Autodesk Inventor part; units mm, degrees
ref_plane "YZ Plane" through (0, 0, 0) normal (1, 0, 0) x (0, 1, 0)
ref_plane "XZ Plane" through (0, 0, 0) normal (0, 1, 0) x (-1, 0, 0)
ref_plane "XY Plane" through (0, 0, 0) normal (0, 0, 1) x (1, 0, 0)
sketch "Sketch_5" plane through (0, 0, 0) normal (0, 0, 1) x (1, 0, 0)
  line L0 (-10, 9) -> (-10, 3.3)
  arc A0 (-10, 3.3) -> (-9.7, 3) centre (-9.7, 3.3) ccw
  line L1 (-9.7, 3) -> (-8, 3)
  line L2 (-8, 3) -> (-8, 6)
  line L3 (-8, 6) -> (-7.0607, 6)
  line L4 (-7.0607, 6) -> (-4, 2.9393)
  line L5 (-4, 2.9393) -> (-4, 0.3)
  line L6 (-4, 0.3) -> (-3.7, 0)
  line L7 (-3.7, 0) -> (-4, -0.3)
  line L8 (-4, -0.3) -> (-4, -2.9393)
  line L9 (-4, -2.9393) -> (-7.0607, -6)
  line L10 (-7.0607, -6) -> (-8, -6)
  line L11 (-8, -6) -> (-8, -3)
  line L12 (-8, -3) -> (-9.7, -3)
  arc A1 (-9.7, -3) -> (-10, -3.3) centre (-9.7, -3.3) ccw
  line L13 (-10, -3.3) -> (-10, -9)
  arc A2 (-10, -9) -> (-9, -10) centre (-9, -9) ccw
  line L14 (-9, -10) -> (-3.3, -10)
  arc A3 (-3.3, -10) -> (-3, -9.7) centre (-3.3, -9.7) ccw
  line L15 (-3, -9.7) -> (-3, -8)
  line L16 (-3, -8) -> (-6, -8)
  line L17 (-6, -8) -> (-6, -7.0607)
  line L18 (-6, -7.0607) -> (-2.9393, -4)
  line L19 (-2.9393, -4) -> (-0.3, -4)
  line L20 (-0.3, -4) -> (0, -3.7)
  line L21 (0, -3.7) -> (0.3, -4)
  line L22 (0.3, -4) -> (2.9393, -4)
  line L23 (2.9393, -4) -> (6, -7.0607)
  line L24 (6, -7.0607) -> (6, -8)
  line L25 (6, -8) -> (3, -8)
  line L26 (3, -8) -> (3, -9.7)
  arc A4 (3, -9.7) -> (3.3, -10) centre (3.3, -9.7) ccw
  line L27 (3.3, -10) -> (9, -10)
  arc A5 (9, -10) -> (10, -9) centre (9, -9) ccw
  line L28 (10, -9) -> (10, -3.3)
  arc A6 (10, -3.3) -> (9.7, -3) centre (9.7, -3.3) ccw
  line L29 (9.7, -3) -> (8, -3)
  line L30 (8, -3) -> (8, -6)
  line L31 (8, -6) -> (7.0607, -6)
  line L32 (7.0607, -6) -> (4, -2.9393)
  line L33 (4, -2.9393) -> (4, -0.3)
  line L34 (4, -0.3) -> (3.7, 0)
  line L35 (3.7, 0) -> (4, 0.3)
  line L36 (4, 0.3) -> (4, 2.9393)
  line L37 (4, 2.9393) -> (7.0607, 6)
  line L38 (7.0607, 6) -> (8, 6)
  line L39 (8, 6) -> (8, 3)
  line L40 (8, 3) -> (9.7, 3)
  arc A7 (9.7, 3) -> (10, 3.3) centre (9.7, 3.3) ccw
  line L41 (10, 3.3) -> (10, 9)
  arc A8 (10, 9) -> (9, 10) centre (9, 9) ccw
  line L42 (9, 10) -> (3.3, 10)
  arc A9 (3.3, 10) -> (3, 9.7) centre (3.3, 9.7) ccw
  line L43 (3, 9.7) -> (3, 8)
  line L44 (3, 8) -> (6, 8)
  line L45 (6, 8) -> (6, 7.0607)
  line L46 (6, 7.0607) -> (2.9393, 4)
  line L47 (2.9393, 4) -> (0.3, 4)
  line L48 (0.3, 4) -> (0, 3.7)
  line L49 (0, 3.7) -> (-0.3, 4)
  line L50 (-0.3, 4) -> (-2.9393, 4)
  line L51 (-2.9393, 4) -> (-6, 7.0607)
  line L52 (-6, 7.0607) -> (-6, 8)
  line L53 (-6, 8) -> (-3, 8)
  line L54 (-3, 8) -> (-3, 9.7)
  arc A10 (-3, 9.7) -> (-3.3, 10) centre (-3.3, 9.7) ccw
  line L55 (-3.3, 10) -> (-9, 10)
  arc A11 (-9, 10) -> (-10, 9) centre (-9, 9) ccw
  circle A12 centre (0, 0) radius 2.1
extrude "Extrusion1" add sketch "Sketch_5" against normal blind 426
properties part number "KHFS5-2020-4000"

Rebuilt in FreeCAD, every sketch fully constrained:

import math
import FreeCAD as App
import Part
import Sketcher

V = App.Vector

doc = App.newDocument("Part")
params = doc.addObject("Spreadsheet::Sheet", "Params")
for row, (alias, value) in enumerate([
    ("sketch1_radius", "1 mm"),
    ("sketch1_diameter", "4.2 mm"),
    ("sketch1_radius2", "0.3 mm"),
    ("sketch1_width", "3 mm"),
    ("sketch1_width2", "1.7 mm"),
    ("pad1_length", "426 mm"),
], start=1):
    params.set(f"A{row}", alias)
    params.set(f"B{row}", "=" + value)
    params.setAlias(f"B{row}", alias)

body = doc.addObject("PartDesign::Body", "Body")

sketch1 = body.newObject("Sketcher::SketchObject", "Sketch")
sketch1.AttachmentSupport = (doc.getObject("XY_Plane"), [""])
sketch1.MapMode = "FlatFace"
sketch1.addGeometry([
    Part.ArcOfCircle(Part.Circle(V(-9, 9, 0), V(0, 0, 1), 1), math.radians(90), math.radians(180)),
    Part.LineSegment(V(-10, 9, 0), V(-10, 3.3, 0)),
    Part.ArcOfCircle(Part.Circle(V(-9.7, 3.3, 0), V(0, 0, 1), 0.3), math.radians(180), math.radians(270)),
    Part.LineSegment(V(-9.7, 3, 0), V(-8, 3, 0)),
    Part.LineSegment(V(-8, 3, 0), V(-8, 6, 0)),
    Part.LineSegment(V(-8, 6, 0), V(-7.06, 6, 0)),
    Part.LineSegment(V(-7.06, 6, 0), V(-4, 2.94, 0)),
    Part.LineSegment(V(-4, 2.94, 0), V(-4, 0.3, 0)),
    Part.LineSegment(V(-4, 0.3, 0), V(-3.7, 0, 0)),
    Part.LineSegment(V(-3.7, 0, 0), V(-4, -0.3, 0)),
    Part.LineSegment(V(-4, -0.3, 0), V(-4, -2.94, 0)),
    Part.LineSegment(V(-4, -2.94, 0), V(-7.06, -6, 0)),
    Part.LineSegment(V(-7.06, -6, 0), V(-8, -6, 0)),
    Part.LineSegment(V(-8, -6, 0), V(-8, -3, 0)),
    Part.LineSegment(V(-8, -3, 0), V(-9.7, -3, 0)),
    Part.ArcOfCircle(Part.Circle(V(-9.7, -3.3, 0), V(0, 0, 1), 0.3), math.radians(90), math.radians(180)),
    Part.LineSegment(V(-10, -3.3, 0), V(-10, -9, 0)),
    Part.ArcOfCircle(Part.Circle(V(-9, -9, 0), V(0, 0, 1), 1), math.radians(180), math.radians(270)),
    Part.LineSegment(V(-9, -10, 0), V(-3.3, -10, 0)),
    Part.ArcOfCircle(Part.Circle(V(-3.3, -9.7, 0), V(0, 0, 1), 0.3), math.radians(-90), math.radians(0)),
    Part.LineSegment(V(-3, -9.7, 0), V(-3, -8, 0)),
    Part.LineSegment(V(-3, -8, 0), V(-6, -8, 0)),
    Part.LineSegment(V(-6, -8, 0), V(-6, -7.06, 0)),
    Part.LineSegment(V(-6, -7.06, 0), V(-2.94, -4, 0)),
    Part.LineSegment(V(-2.94, -4, 0), V(-0.3, -4, 0)),
    Part.LineSegment(V(-0.3, -4, 0), V(0, -3.7, 0)),
    Part.LineSegment(V(0, -3.7, 0), V(0.3, -4, 0)),
    Part.LineSegment(V(0.3, -4, 0), V(2.94, -4, 0)),
    Part.LineSegment(V(2.94, -4, 0), V(6, -7.06, 0)),
    Part.LineSegment(V(6, -7.06, 0), V(6, -8, 0)),
    Part.LineSegment(V(6, -8, 0), V(3, -8, 0)),
    Part.LineSegment(V(3, -8, 0), V(3, -9.7, 0)),
    Part.ArcOfCircle(Part.Circle(V(3.3, -9.7, 0), V(0, 0, 1), 0.3), math.radians(180), math.radians(270)),
    Part.LineSegment(V(3.3, -10, 0), V(9, -10, 0)),
    Part.ArcOfCircle(Part.Circle(V(9, -9, 0), V(0, 0, 1), 1), math.radians(-90), math.radians(0)),
    Part.LineSegment(V(10, -9, 0), V(10, -3.3, 0)),
    Part.ArcOfCircle(Part.Circle(V(9.7, -3.3, 0), V(0, 0, 1), 0.3), math.radians(0), math.radians(90)),
    Part.LineSegment(V(9.7, -3, 0), V(8, -3, 0)),
    Part.LineSegment(V(8, -3, 0), V(8, -6, 0)),
    Part.LineSegment(V(8, -6, 0), V(7.06, -6, 0)),
    Part.LineSegment(V(7.06, -6, 0), V(4, -2.94, 0)),
    Part.LineSegment(V(4, -2.94, 0), V(4, -0.3, 0)),
    Part.LineSegment(V(4, -0.3, 0), V(3.7, 0, 0)),
    Part.LineSegment(V(3.7, 0, 0), V(4, 0.3, 0)),
    Part.LineSegment(V(4, 0.3, 0), V(4, 2.94, 0)),
    Part.LineSegment(V(4, 2.94, 0), V(7.06, 6, 0)),
    Part.LineSegment(V(7.06, 6, 0), V(8, 6, 0)),
    Part.LineSegment(V(8, 6, 0), V(8, 3, 0)),
    Part.LineSegment(V(8, 3, 0), V(9.7, 3, 0)),
    Part.ArcOfCircle(Part.Circle(V(9.7, 3.3, 0), V(0, 0, 1), 0.3), math.radians(-90), math.radians(0)),
    Part.LineSegment(V(10, 3.3, 0), V(10, 9, 0)),
    Part.ArcOfCircle(Part.Circle(V(9, 9, 0), V(0, 0, 1), 1), math.radians(0), math.radians(90)),
    Part.LineSegment(V(9, 10, 0), V(3.3, 10, 0)),
    Part.ArcOfCircle(Part.Circle(V(3.3, 9.7, 0), V(0, 0, 1), 0.3), math.radians(90), math.radians(180)),
    Part.LineSegment(V(3, 9.7, 0), V(3, 8, 0)),
    Part.LineSegment(V(3, 8, 0), V(6, 8, 0)),
    Part.LineSegment(V(6, 8, 0), V(6, 7.06, 0)),
    Part.LineSegment(V(6, 7.06, 0), V(2.94, 4, 0)),
    Part.LineSegment(V(2.94, 4, 0), V(0.3, 4, 0)),
    Part.LineSegment(V(0.3, 4, 0), V(0, 3.7, 0)),
    Part.LineSegment(V(0, 3.7, 0), V(-0.3, 4, 0)),
    Part.LineSegment(V(-0.3, 4, 0), V(-2.94, 4, 0)),
    Part.LineSegment(V(-2.94, 4, 0), V(-6, 7.06, 0)),
    Part.LineSegment(V(-6, 7.06, 0), V(-6, 8, 0)),
    Part.LineSegment(V(-6, 8, 0), V(-3, 8, 0)),
    Part.LineSegment(V(-3, 8, 0), V(-3, 9.7, 0)),
    Part.ArcOfCircle(Part.Circle(V(-3.3, 9.7, 0), V(0, 0, 1), 0.3), math.radians(0), math.radians(90)),
    Part.LineSegment(V(-3.3, 10, 0), V(-9, 10, 0)),
    Part.Circle(V(0, 0, 0), V(0, 0, 1), 2.1),
], False)
sketch1.addConstraint([
    Sketcher.Constraint("Tangent", 0, 2, 1, 1),
    Sketcher.Constraint("Tangent", 1, 2, 2, 1),
    Sketcher.Constraint("Tangent", 2, 2, 3, 1),
    Sketcher.Constraint("Coincident", 3, 2, 4, 1),
    Sketcher.Constraint("Coincident", 4, 2, 5, 1),
    Sketcher.Constraint("Coincident", 5, 2, 6, 1),
    Sketcher.Constraint("Coincident", 6, 2, 7, 1),
    Sketcher.Constraint("Coincident", 7, 2, 8, 1),
    Sketcher.Constraint("Coincident", 8, 2, 9, 1),
    Sketcher.Constraint("Coincident", 9, 2, 10, 1),
    Sketcher.Constraint("Coincident", 10, 2, 11, 1),
    Sketcher.Constraint("Coincident", 11, 2, 12, 1),
    Sketcher.Constraint("Coincident", 12, 2, 13, 1),
    Sketcher.Constraint("Coincident", 13, 2, 14, 1),
    Sketcher.Constraint("Tangent", 14, 2, 15, 1),
    Sketcher.Constraint("Tangent", 15, 2, 16, 1),
    Sketcher.Constraint("Tangent", 16, 2, 17, 1),
    Sketcher.Constraint("Tangent", 17, 2, 18, 1),
    Sketcher.Constraint("Tangent", 18, 2, 19, 1),
    Sketcher.Constraint("Tangent", 19, 2, 20, 1),
    Sketcher.Constraint("Coincident", 20, 2, 21, 1),
    Sketcher.Constraint("Coincident", 21, 2, 22, 1),
    Sketcher.Constraint("Coincident", 22, 2, 23, 1),
    Sketcher.Constraint("Coincident", 23, 2, 24, 1),
    Sketcher.Constraint("Coincident", 24, 2, 25, 1),
    Sketcher.Constraint("Coincident", 25, 2, 26, 1),
    Sketcher.Constraint("Coincident", 26, 2, 27, 1),
    Sketcher.Constraint("Coincident", 27, 2, 28, 1),
    Sketcher.Constraint("Coincident", 28, 2, 29, 1),
    Sketcher.Constraint("Coincident", 29, 2, 30, 1),
    Sketcher.Constraint("Coincident", 30, 2, 31, 1),
    Sketcher.Constraint("Tangent", 31, 2, 32, 1),
    Sketcher.Constraint("Tangent", 32, 2, 33, 1),
    Sketcher.Constraint("Tangent", 33, 2, 34, 1),
    Sketcher.Constraint("Tangent", 34, 2, 35, 1),
    Sketcher.Constraint("Tangent", 35, 2, 36, 1),
    Sketcher.Constraint("Tangent", 36, 2, 37, 1),
    Sketcher.Constraint("Coincident", 37, 2, 38, 1),
    Sketcher.Constraint("Coincident", 38, 2, 39, 1),
    Sketcher.Constraint("Coincident", 39, 2, 40, 1),
    Sketcher.Constraint("Coincident", 40, 2, 41, 1),
    Sketcher.Constraint("Coincident", 41, 2, 42, 1),
    Sketcher.Constraint("Coincident", 42, 2, 43, 1),
    Sketcher.Constraint("Coincident", 43, 2, 44, 1),
    Sketcher.Constraint("Coincident", 44, 2, 45, 1),
    Sketcher.Constraint("Coincident", 45, 2, 46, 1),
    Sketcher.Constraint("Coincident", 46, 2, 47, 1),
    Sketcher.Constraint("Coincident", 47, 2, 48, 1),
    Sketcher.Constraint("Tangent", 48, 2, 49, 1),
    Sketcher.Constraint("Tangent", 49, 2, 50, 1),
    Sketcher.Constraint("Tangent", 50, 2, 51, 1),
    Sketcher.Constraint("Tangent", 51, 2, 52, 1),
    Sketcher.Constraint("Tangent", 52, 2, 53, 1),
    Sketcher.Constraint("Tangent", 53, 2, 54, 1),
    Sketcher.Constraint("Coincident", 54, 2, 55, 1),
    Sketcher.Constraint("Coincident", 55, 2, 56, 1),
    Sketcher.Constraint("Coincident", 56, 2, 57, 1),
    Sketcher.Constraint("Coincident", 57, 2, 58, 1),
    Sketcher.Constraint("Coincident", 58, 2, 59, 1),
    Sketcher.Constraint("Coincident", 59, 2, 60, 1),
    Sketcher.Constraint("Coincident", 60, 2, 61, 1),
    Sketcher.Constraint("Coincident", 61, 2, 62, 1),
    Sketcher.Constraint("Coincident", 62, 2, 63, 1),
    Sketcher.Constraint("Coincident", 63, 2, 64, 1),
    Sketcher.Constraint("Coincident", 64, 2, 65, 1),
    Sketcher.Constraint("Tangent", 65, 2, 66, 1),
    Sketcher.Constraint("Tangent", 66, 2, 67, 1),
    Sketcher.Constraint("Tangent", 67, 2, 0, 1),
    Sketcher.Constraint("Vertical", 1),
    Sketcher.Constraint("Horizontal", 3),
    Sketcher.Constraint("Vertical", 4),
    Sketcher.Constraint("Horizontal", 5),
    Sketcher.Constraint("Vertical", 7),
    Sketcher.Constraint("Vertical", 10),
    Sketcher.Constraint("Horizontal", 12),
    Sketcher.Constraint("Vertical", 13),
    Sketcher.Constraint("Horizontal", 14),
    Sketcher.Constraint("Vertical", 16),
    Sketcher.Constraint("Horizontal", 18),
    Sketcher.Constraint("Vertical", 20),
    Sketcher.Constraint("Horizontal", 21),
    Sketcher.Constraint("Vertical", 22),
    Sketcher.Constraint("Horizontal", 24),
    Sketcher.Constraint("Horizontal", 27),
    Sketcher.Constraint("Vertical", 29),
    Sketcher.Constraint("Horizontal", 30),
    Sketcher.Constraint("Vertical", 31),
    Sketcher.Constraint("Horizontal", 33),
    Sketcher.Constraint("Vertical", 35),
    Sketcher.Constraint("Horizontal", 37),
    Sketcher.Constraint("Vertical", 38),
    Sketcher.Constraint("Horizontal", 39),
    Sketcher.Constraint("Vertical", 41),
    Sketcher.Constraint("Vertical", 44),
    Sketcher.Constraint("Horizontal", 46),
    Sketcher.Constraint("Vertical", 47),
    Sketcher.Constraint("Horizontal", 48),
    Sketcher.Constraint("Vertical", 50),
    Sketcher.Constraint("Horizontal", 52),
    Sketcher.Constraint("Vertical", 54),
    Sketcher.Constraint("Horizontal", 55),
    Sketcher.Constraint("Vertical", 56),
    Sketcher.Constraint("Horizontal", 58),
    Sketcher.Constraint("Horizontal", 61),
    Sketcher.Constraint("Vertical", 63),
    Sketcher.Constraint("Horizontal", 64),
    Sketcher.Constraint("Vertical", 65),
    Sketcher.Constraint("Horizontal", 67),
    Sketcher.Constraint("Coincident", 68, 3, -1, 1),
    Sketcher.Constraint("Equal", 2, 15),
    Sketcher.Constraint("Equal", 0, 17),
    Sketcher.Constraint("Equal", 15, 19),
    Sketcher.Constraint("Equal", 19, 32),
    Sketcher.Constraint("Equal", 17, 34),
    Sketcher.Constraint("Equal", 32, 36),
    Sketcher.Constraint("Equal", 36, 49),
    Sketcher.Constraint("Equal", 34, 51),
    Sketcher.Constraint("Equal", 49, 53),
    Sketcher.Constraint("Equal", 53, 66),
    Sketcher.Constraint("Symmetric", 0, 3, 34, 3, -1, 1),
    Sketcher.Constraint("Symmetric", 15, 3, 49, 3, -1, 1),
    Sketcher.Constraint("Symmetric", 19, 3, 53, 3, -1, 1),
    Sketcher.Constraint("Symmetric", 3, 2, 37, 2, -1, 1),
    Sketcher.Constraint("Symmetric", 5, 2, 39, 2, -1, 1),
    Sketcher.Constraint("Symmetric", 6, 2, 40, 2, -1, 1),
    Sketcher.Constraint("Symmetric", 8, 2, 42, 2, -1, 1),
    Sketcher.Constraint("Symmetric", 9, 2, 43, 2, -1, 1),
    Sketcher.Constraint("Symmetric", 11, 2, 45, 2, -1, 1),
    Sketcher.Constraint("Symmetric", 21, 2, 55, 2, -1, 1),
    Sketcher.Constraint("Symmetric", 23, 2, 57, 2, -1, 1),
    Sketcher.Constraint("Symmetric", 25, 2, 59, 2, -1, 1),
    Sketcher.Constraint("Symmetric", 26, 2, 60, 2, -1, 1),
    Sketcher.Constraint("Symmetric", 28, 2, 62, 2, -1, 1),
    Sketcher.Constraint("Symmetric", 30, 2, 64, 2, -1, 1),
    Sketcher.Constraint("Symmetric", 19, 3, 32, 3, -2),
    Sketcher.Constraint("Symmetric", 15, 3, 36, 3, -2),
    Sketcher.Constraint("Symmetric", 24, 2, 26, 2, -2),
    Sketcher.Constraint("Symmetric", 22, 2, 28, 2, -2),
    Sketcher.Constraint("Symmetric", 12, 2, 38, 2, -2),
    Sketcher.Constraint("Symmetric", 10, 2, 40, 2, -2),
    Sketcher.Constraint("PointOnObject", 8, 2, -1),
    Sketcher.Constraint("PointOnObject", 25, 2, -2),
    Sketcher.Constraint("Parallel", 6, 8),
    Sketcher.Constraint("Perpendicular", 8, 9),
    Sketcher.Constraint("Parallel", 9, 11),
    Sketcher.Constraint("Parallel", 11, 23),
    Sketcher.Constraint("Parallel", 23, 25),
    Sketcher.Constraint("Perpendicular", 25, 26),
    Sketcher.Constraint("Parallel", 26, 28),
    Sketcher.Constraint("Parallel", 40, 42),
    Sketcher.Constraint("Parallel", 43, 45),
    Sketcher.Constraint("Parallel", 45, 57),
    Sketcher.Constraint("Parallel", 57, 59),
    Sketcher.Constraint("Parallel", 60, 62),
    Sketcher.Constraint("Horizontal", 21, 2, 29, 2),
    Sketcher.Constraint("Vertical", 38, 2, 46, 2),
    Sketcher.Constraint("Equal", 67, 1),
    Sketcher.Constraint("Equal", 64, 4),
    Sketcher.Constraint("Equal", 61, 7),
    Sketcher.Constraint("Equal", 48, 20),
    Sketcher.Constraint("Equal", 46, 22),
    Sketcher.Constraint("Equal", 11, 23),
    Sketcher.Constraint("Equal", 9, 25),
    Sketcher.Constraint("Radius", 0, 1.0),
    Sketcher.Constraint("Diameter", 68, 4.2),
    Sketcher.Constraint("Radius", 2, 0.3),
    Sketcher.Constraint("DistanceX", 21, 2, 21, 1, 3.0),
    Sketcher.Constraint("DistanceX", 3, 1, 3, 2, 1.7),
    Sketcher.Constraint("DistanceX", 18, 1, 18, 2, 5.7),
    Sketcher.Constraint("DistanceX", 0, 3, -1, 1, 9.0),
    Sketcher.Constraint("DistanceX", 6, 2, -1, 1, 4.0),
    Sketcher.Constraint("DistanceY", -1, 1, 7, 2, 0.3),
    Sketcher.Constraint("DistanceX", 5, 1, 5, 2, 0.9393),
])
sketch1.setExpression("Constraints[163]", "Params.sketch1_radius")
sketch1.setExpression("Constraints[164]", "Params.sketch1_diameter")
sketch1.setExpression("Constraints[165]", "Params.sketch1_radius2")
sketch1.setExpression("Constraints[166]", "Params.sketch1_width")
sketch1.setExpression("Constraints[167]", "Params.sketch1_width2")
pad1 = body.newObject("PartDesign::Pad", "Pad")
pad1.Profile = sketch1
pad1.setExpression("Length", "Params.pad1_length")
pad1.Reversed = True

doc.recompute()
